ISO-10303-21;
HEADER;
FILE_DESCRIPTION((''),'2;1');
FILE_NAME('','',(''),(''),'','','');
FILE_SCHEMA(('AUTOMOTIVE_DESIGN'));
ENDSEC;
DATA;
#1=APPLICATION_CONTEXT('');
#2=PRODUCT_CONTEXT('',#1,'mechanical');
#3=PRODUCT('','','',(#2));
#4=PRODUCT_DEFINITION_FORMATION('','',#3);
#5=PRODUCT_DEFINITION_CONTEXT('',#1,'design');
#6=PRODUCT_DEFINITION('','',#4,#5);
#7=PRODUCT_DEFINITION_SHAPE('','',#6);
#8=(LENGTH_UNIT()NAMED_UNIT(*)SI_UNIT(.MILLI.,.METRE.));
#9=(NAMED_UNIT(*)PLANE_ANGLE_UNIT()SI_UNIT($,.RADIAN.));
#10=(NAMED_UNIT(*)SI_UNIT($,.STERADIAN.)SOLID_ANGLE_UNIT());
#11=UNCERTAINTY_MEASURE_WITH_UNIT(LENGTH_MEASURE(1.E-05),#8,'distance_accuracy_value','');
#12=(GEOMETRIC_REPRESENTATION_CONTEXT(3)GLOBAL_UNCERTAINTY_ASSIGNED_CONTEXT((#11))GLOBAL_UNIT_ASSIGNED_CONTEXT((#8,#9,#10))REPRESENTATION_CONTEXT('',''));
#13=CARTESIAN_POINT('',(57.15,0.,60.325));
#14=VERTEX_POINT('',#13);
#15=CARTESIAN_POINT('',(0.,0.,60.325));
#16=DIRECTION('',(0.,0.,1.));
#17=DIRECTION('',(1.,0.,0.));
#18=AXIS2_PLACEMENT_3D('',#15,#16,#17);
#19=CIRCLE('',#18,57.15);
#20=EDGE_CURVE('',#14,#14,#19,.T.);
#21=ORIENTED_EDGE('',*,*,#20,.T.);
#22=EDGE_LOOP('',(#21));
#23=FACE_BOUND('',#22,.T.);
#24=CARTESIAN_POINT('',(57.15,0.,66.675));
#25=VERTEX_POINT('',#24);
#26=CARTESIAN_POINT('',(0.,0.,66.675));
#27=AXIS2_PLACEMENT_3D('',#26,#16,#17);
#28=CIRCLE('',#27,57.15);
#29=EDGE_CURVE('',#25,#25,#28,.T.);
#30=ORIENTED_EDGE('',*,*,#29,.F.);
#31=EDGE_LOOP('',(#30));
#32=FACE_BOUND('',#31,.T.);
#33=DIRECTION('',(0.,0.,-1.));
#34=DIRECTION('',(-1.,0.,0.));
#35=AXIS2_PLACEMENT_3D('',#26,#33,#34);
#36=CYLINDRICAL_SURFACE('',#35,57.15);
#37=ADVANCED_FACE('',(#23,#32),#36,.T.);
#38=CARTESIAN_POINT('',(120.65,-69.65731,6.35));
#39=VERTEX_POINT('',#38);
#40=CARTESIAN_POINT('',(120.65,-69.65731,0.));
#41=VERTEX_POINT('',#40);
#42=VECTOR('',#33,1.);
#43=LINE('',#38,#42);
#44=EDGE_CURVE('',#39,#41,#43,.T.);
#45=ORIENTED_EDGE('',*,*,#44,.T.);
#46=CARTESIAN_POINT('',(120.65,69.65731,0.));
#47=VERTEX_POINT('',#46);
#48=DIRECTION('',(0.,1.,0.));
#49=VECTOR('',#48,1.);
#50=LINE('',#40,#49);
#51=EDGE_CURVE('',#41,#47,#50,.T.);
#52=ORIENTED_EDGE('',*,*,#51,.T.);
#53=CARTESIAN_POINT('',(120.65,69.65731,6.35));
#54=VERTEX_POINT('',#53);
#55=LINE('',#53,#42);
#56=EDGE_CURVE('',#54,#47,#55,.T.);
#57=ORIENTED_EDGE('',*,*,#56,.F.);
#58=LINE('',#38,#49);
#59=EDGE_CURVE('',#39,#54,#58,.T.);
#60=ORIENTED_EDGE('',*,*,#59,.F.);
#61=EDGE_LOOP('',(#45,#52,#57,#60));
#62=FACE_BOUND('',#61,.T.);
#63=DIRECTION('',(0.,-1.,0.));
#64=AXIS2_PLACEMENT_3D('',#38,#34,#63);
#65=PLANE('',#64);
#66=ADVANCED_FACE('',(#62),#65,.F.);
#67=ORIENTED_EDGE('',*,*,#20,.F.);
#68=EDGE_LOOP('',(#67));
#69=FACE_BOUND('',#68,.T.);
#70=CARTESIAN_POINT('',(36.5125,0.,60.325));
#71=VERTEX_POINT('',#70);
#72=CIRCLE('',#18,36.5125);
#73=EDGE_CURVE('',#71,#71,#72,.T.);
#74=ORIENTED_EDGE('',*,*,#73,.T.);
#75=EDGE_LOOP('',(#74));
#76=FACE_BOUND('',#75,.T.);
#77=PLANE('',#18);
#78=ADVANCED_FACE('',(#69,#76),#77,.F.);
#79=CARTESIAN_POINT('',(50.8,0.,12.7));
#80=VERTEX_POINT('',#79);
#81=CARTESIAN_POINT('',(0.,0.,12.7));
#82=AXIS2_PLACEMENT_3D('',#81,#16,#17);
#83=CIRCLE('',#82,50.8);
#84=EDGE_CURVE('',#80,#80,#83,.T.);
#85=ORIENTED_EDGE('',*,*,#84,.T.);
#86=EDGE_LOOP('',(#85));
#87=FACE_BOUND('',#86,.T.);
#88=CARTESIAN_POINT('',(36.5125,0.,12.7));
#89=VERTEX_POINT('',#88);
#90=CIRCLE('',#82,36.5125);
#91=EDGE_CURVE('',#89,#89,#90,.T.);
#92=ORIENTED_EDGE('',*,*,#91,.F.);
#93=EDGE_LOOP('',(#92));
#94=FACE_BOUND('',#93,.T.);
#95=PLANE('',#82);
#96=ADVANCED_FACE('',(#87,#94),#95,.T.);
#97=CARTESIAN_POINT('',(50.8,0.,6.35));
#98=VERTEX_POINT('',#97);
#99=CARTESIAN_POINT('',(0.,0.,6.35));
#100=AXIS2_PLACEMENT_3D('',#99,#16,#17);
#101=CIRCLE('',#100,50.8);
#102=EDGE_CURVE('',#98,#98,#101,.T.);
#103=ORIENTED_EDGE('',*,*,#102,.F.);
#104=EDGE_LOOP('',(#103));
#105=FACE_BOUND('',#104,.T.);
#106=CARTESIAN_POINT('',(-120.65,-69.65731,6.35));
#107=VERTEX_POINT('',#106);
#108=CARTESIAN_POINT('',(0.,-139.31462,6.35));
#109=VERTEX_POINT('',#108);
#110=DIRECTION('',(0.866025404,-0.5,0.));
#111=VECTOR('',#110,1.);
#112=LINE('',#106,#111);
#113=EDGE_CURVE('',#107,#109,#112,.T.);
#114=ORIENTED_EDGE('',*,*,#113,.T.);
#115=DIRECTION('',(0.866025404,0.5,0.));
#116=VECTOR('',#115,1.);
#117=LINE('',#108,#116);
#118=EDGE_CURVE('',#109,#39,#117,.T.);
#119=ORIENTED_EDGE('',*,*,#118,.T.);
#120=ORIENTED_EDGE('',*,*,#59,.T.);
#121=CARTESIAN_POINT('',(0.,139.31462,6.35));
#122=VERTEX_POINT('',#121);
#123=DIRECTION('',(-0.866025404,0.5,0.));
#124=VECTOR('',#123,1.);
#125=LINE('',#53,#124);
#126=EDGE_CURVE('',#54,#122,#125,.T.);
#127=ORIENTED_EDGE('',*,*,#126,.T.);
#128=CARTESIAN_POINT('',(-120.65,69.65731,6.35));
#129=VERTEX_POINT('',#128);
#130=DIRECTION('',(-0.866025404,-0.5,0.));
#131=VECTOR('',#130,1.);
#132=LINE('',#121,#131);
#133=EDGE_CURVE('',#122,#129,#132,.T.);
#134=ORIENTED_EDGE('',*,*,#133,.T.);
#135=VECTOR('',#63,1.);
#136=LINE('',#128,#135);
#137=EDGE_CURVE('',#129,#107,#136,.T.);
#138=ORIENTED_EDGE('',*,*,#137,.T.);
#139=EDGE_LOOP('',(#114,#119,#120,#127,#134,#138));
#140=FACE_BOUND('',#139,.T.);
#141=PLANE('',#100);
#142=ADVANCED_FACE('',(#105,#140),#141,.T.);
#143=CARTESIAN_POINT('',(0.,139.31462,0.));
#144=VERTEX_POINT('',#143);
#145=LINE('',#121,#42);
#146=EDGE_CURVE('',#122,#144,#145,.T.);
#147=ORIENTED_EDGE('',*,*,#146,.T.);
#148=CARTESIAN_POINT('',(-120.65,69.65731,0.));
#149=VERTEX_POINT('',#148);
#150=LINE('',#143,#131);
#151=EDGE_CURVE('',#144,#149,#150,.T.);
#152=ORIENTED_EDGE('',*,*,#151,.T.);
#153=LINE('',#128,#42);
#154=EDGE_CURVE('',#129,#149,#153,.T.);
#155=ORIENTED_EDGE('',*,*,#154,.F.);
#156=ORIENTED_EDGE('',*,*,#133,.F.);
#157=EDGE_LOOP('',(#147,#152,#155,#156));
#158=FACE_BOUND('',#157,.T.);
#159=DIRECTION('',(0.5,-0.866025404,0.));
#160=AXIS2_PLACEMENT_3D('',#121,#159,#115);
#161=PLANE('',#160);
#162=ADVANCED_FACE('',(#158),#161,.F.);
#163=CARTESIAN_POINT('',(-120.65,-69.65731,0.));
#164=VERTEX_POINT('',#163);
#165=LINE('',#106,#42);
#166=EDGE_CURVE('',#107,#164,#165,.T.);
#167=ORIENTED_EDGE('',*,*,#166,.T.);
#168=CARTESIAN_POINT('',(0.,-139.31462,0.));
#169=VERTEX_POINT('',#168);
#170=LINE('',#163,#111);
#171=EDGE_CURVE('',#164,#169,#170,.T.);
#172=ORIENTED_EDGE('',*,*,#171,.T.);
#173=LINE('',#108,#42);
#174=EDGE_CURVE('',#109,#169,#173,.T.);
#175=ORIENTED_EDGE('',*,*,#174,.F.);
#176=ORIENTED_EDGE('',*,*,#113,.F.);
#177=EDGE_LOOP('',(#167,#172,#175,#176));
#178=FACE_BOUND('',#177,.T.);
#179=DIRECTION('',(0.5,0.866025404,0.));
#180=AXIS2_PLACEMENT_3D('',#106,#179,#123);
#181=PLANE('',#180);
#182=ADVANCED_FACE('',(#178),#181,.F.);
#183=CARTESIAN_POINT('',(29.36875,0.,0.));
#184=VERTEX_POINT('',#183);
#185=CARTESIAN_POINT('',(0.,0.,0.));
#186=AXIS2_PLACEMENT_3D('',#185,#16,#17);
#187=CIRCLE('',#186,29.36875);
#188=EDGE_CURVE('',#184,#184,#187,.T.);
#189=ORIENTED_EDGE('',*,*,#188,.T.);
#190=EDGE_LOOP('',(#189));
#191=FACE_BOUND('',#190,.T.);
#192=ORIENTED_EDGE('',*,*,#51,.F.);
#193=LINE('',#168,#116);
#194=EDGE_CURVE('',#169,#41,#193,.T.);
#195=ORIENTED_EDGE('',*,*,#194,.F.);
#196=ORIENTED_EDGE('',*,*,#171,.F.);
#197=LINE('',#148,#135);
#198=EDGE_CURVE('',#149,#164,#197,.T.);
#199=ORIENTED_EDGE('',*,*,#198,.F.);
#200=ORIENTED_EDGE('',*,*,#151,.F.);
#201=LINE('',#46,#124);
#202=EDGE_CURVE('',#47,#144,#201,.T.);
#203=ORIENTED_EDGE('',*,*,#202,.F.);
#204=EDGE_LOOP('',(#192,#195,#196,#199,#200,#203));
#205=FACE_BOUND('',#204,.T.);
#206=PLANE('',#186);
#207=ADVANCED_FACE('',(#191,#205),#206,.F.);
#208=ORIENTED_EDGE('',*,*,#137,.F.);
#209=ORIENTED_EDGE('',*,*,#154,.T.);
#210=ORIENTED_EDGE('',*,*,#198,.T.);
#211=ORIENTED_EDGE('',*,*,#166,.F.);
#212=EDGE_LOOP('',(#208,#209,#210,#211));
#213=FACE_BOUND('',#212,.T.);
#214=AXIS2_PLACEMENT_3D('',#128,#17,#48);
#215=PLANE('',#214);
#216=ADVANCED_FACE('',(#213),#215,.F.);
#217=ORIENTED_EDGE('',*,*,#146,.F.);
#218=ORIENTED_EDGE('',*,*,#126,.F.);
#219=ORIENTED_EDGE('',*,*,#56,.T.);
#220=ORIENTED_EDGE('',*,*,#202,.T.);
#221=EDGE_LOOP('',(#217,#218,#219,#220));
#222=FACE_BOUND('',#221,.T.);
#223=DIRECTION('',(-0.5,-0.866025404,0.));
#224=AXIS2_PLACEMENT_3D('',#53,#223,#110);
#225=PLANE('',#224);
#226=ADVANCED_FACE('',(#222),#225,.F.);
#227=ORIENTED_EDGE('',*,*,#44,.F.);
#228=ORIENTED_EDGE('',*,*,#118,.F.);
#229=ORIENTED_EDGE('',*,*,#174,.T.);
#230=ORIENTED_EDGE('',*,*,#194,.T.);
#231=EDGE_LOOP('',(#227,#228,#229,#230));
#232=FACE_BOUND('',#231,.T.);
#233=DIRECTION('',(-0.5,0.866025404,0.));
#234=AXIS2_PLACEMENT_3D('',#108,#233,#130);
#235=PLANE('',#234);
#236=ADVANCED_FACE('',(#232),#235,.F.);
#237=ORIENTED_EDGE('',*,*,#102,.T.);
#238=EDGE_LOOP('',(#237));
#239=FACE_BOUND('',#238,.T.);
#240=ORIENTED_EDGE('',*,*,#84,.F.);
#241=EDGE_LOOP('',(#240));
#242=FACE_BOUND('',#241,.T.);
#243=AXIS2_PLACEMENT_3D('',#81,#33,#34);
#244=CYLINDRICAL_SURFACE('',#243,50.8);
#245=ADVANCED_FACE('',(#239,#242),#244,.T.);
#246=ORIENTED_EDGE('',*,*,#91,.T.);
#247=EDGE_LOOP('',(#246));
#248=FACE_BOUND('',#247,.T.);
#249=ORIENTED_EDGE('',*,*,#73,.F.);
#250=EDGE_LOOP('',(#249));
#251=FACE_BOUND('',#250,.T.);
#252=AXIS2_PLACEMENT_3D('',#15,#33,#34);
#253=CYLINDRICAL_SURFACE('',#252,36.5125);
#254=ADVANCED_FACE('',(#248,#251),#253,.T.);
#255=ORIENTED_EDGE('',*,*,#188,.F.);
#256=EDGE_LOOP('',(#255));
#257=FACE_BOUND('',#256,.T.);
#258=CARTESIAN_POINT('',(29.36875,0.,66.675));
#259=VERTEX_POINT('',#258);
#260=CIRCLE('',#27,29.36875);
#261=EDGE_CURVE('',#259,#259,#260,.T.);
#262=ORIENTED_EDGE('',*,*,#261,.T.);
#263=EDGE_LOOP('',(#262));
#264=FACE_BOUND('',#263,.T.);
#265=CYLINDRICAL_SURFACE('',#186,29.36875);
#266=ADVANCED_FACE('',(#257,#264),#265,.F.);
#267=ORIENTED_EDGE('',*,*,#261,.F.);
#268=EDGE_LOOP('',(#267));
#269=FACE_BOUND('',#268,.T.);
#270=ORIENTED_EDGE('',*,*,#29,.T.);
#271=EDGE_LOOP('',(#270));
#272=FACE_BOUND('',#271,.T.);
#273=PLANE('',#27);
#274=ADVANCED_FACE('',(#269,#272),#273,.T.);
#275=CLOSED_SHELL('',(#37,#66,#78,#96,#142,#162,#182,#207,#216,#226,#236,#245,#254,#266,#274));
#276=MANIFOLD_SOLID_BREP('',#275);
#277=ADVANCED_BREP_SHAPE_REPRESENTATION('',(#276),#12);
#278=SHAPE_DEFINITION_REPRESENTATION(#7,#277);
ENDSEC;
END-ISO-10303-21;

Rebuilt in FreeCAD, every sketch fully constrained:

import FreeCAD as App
import Part
import Sketcher

V = App.Vector
Q = App.Units.Quantity


def add_polygon(sketch, points):
    """Adds a closed chain of lines whose ends are joined by coincident constraints."""
    first, n = sketch.GeometryCount, len(points)
    for a, b in zip(points, points[1:] + points[:1]):
        sketch.addGeometry(Part.LineSegment(App.Vector(*a, 0), App.Vector(*b, 0)), False)
    for i in range(n):
        sketch.addConstraint(Sketcher.Constraint("Coincident", first + i, 2, first + (i + 1) % n, 1))

doc = App.newDocument("Part")
body = doc.addObject("PartDesign::Body", "Body")

# Sketch on XY plane
sketch1 = body.newObject("Sketcher::SketchObject", "Sketch")
sketch1.AttachmentSupport = (doc.getObject("XY_Plane"), [""])
sketch1.MapMode = "FlatFace"
add_polygon(sketch1, [(121, 70), (0, 139), (-121, 70), (-121, -70), (0, -139), (121, -70)])  # lines 0-5
sketch1.addConstraint(Sketcher.Constraint("Vertical", 2))
sketch1.addConstraint(Sketcher.Constraint("Vertical", 5))
sketch1.addConstraint(Sketcher.Constraint("Symmetric", 0, 2, 3, 2, -1, 1))
sketch1.addConstraint(Sketcher.Constraint("Symmetric", 1, 2, 4, 2, -1, 1))
sketch1.addConstraint(Sketcher.Constraint("PointOnObject", 0, 2, -2))
sketch1.addConstraint(Sketcher.Constraint("Parallel", 0, 3))
sketch1.addConstraint(Sketcher.Constraint("Horizontal", 2, 2, 4, 2))
sketch1.addConstraint(Sketcher.Constraint("Angle", 0, Q("150 deg")))
sketch1.addConstraint(Sketcher.Constraint("DistanceX", 2, 2, 4, 2, Q("9.5 in")))
sketch1.addConstraint(Sketcher.Constraint("DistanceY", 2, 2, 2, 1, Q("139.31462 mm")))
pad1 = body.newObject("PartDesign::Pad", "Pad")
pad1.Profile = sketch1
pad1.Length = Q("0.25 in")

# Sketch on XY plane
sketch2 = body.newObject("Sketcher::SketchObject", "Sketch001")
sketch2.AttachmentSupport = (doc.getObject("XY_Plane"), [""])
sketch2.MapMode = "FlatFace"
sketch2.AttachmentOffset = App.Placement(V(0, 0, 0.25 * 25.4), App.Rotation())
sketch2.addGeometry(Part.Circle(V(0, 0, 0), V(0, 0, 1), 29), False)
sketch2.addConstraint(Sketcher.Constraint("Coincident", 0, 3, -1, 1))
sketch2.addConstraint(Sketcher.Constraint("Diameter", 0, Q("2.3125 in")))
pocket1 = body.newObject("PartDesign::Pocket", "Pocket")
pocket1.Profile = sketch2
pocket1.Type = "ThroughAll"

# Sketch on XY plane
sketch3 = body.newObject("Sketcher::SketchObject", "Sketch002")
sketch3.AttachmentSupport = (doc.getObject("XY_Plane"), [""])
sketch3.MapMode = "FlatFace"
sketch3.AttachmentOffset = App.Placement(V(0, 0, 2.375 * 25.4), App.Rotation())
sketch3.addGeometry(Part.Circle(V(0, 0, 0), V(0, 0, 1), 37), False)
sketch3.addGeometry(Part.Circle(V(0, 0, 0), V(0, 0, 1), 29), False)
sketch3.addConstraint(Sketcher.Constraint("Coincident", 0, 3, -1, 1))
sketch3.addConstraint(Sketcher.Constraint("Coincident", 1, 3, -1, 1))
sketch3.addConstraint(Sketcher.Constraint("Diameter", 0, Q("2.875 in")))
sketch3.addConstraint(Sketcher.Constraint("Diameter", 1, Q("2.3125 in")))
pad2 = body.newObject("PartDesign::Pad", "Pad001")
pad2.Profile = sketch3
pad2.Length = Q("2.125 in")
pad2.Reversed = True

# Sketch on XY plane
sketch4 = body.newObject("Sketcher::SketchObject", "Sketch003")
sketch4.AttachmentSupport = (doc.getObject("XY_Plane"), [""])
sketch4.MapMode = "FlatFace"
sketch4.AttachmentOffset = App.Placement(V(0, 0, 2.625 * 25.4), App.Rotation())
sketch4.addGeometry(Part.Circle(V(0, 0, 0), V(0, 0, 1), 57), False)
sketch4.addGeometry(Part.Circle(V(0, 0, 0), V(0, 0, 1), 29), False)
sketch4.addConstraint(Sketcher.Constraint("Coincident", 0, 3, -1, 1))
sketch4.addConstraint(Sketcher.Constraint("Coincident", 1, 3, -1, 1))
sketch4.addConstraint(Sketcher.Constraint("Diameter", 0, Q("4.5 in")))
sketch4.addConstraint(Sketcher.Constraint("Diameter", 1, Q("2.3125 in")))
pad3 = body.newObject("PartDesign::Pad", "Pad002")
pad3.Profile = sketch4
pad3.Length = Q("0.25 in")
pad3.Reversed = True

# Sketch on XY plane
sketch5 = body.newObject("Sketcher::SketchObject", "Sketch004")
sketch5.AttachmentSupport = (doc.getObject("XY_Plane"), [""])
sketch5.MapMode = "FlatFace"
sketch5.AttachmentOffset = App.Placement(V(0, 0, 0.5 * 25.4), App.Rotation())
sketch5.addGeometry(Part.Circle(V(0, 0, 0), V(0, 0, 1), 51), False)
sketch5.addGeometry(Part.Circle(V(0, 0, 0), V(0, 0, 1), 37), False)
sketch5.addConstraint(Sketcher.Constraint("Coincident", 0, 3, -1, 1))
sketch5.addConstraint(Sketcher.Constraint("Coincident", 1, 3, -1, 1))
sketch5.addConstraint(Sketcher.Constraint("Diameter", 0, Q("4 in")))
sketch5.addConstraint(Sketcher.Constraint("Diameter", 1, Q("2.875 in")))
pad4 = body.newObject("PartDesign::Pad", "Pad003")
pad4.Profile = sketch5
pad4.Length = Q("0.25 in")
pad4.Reversed = True

doc.recompute()
